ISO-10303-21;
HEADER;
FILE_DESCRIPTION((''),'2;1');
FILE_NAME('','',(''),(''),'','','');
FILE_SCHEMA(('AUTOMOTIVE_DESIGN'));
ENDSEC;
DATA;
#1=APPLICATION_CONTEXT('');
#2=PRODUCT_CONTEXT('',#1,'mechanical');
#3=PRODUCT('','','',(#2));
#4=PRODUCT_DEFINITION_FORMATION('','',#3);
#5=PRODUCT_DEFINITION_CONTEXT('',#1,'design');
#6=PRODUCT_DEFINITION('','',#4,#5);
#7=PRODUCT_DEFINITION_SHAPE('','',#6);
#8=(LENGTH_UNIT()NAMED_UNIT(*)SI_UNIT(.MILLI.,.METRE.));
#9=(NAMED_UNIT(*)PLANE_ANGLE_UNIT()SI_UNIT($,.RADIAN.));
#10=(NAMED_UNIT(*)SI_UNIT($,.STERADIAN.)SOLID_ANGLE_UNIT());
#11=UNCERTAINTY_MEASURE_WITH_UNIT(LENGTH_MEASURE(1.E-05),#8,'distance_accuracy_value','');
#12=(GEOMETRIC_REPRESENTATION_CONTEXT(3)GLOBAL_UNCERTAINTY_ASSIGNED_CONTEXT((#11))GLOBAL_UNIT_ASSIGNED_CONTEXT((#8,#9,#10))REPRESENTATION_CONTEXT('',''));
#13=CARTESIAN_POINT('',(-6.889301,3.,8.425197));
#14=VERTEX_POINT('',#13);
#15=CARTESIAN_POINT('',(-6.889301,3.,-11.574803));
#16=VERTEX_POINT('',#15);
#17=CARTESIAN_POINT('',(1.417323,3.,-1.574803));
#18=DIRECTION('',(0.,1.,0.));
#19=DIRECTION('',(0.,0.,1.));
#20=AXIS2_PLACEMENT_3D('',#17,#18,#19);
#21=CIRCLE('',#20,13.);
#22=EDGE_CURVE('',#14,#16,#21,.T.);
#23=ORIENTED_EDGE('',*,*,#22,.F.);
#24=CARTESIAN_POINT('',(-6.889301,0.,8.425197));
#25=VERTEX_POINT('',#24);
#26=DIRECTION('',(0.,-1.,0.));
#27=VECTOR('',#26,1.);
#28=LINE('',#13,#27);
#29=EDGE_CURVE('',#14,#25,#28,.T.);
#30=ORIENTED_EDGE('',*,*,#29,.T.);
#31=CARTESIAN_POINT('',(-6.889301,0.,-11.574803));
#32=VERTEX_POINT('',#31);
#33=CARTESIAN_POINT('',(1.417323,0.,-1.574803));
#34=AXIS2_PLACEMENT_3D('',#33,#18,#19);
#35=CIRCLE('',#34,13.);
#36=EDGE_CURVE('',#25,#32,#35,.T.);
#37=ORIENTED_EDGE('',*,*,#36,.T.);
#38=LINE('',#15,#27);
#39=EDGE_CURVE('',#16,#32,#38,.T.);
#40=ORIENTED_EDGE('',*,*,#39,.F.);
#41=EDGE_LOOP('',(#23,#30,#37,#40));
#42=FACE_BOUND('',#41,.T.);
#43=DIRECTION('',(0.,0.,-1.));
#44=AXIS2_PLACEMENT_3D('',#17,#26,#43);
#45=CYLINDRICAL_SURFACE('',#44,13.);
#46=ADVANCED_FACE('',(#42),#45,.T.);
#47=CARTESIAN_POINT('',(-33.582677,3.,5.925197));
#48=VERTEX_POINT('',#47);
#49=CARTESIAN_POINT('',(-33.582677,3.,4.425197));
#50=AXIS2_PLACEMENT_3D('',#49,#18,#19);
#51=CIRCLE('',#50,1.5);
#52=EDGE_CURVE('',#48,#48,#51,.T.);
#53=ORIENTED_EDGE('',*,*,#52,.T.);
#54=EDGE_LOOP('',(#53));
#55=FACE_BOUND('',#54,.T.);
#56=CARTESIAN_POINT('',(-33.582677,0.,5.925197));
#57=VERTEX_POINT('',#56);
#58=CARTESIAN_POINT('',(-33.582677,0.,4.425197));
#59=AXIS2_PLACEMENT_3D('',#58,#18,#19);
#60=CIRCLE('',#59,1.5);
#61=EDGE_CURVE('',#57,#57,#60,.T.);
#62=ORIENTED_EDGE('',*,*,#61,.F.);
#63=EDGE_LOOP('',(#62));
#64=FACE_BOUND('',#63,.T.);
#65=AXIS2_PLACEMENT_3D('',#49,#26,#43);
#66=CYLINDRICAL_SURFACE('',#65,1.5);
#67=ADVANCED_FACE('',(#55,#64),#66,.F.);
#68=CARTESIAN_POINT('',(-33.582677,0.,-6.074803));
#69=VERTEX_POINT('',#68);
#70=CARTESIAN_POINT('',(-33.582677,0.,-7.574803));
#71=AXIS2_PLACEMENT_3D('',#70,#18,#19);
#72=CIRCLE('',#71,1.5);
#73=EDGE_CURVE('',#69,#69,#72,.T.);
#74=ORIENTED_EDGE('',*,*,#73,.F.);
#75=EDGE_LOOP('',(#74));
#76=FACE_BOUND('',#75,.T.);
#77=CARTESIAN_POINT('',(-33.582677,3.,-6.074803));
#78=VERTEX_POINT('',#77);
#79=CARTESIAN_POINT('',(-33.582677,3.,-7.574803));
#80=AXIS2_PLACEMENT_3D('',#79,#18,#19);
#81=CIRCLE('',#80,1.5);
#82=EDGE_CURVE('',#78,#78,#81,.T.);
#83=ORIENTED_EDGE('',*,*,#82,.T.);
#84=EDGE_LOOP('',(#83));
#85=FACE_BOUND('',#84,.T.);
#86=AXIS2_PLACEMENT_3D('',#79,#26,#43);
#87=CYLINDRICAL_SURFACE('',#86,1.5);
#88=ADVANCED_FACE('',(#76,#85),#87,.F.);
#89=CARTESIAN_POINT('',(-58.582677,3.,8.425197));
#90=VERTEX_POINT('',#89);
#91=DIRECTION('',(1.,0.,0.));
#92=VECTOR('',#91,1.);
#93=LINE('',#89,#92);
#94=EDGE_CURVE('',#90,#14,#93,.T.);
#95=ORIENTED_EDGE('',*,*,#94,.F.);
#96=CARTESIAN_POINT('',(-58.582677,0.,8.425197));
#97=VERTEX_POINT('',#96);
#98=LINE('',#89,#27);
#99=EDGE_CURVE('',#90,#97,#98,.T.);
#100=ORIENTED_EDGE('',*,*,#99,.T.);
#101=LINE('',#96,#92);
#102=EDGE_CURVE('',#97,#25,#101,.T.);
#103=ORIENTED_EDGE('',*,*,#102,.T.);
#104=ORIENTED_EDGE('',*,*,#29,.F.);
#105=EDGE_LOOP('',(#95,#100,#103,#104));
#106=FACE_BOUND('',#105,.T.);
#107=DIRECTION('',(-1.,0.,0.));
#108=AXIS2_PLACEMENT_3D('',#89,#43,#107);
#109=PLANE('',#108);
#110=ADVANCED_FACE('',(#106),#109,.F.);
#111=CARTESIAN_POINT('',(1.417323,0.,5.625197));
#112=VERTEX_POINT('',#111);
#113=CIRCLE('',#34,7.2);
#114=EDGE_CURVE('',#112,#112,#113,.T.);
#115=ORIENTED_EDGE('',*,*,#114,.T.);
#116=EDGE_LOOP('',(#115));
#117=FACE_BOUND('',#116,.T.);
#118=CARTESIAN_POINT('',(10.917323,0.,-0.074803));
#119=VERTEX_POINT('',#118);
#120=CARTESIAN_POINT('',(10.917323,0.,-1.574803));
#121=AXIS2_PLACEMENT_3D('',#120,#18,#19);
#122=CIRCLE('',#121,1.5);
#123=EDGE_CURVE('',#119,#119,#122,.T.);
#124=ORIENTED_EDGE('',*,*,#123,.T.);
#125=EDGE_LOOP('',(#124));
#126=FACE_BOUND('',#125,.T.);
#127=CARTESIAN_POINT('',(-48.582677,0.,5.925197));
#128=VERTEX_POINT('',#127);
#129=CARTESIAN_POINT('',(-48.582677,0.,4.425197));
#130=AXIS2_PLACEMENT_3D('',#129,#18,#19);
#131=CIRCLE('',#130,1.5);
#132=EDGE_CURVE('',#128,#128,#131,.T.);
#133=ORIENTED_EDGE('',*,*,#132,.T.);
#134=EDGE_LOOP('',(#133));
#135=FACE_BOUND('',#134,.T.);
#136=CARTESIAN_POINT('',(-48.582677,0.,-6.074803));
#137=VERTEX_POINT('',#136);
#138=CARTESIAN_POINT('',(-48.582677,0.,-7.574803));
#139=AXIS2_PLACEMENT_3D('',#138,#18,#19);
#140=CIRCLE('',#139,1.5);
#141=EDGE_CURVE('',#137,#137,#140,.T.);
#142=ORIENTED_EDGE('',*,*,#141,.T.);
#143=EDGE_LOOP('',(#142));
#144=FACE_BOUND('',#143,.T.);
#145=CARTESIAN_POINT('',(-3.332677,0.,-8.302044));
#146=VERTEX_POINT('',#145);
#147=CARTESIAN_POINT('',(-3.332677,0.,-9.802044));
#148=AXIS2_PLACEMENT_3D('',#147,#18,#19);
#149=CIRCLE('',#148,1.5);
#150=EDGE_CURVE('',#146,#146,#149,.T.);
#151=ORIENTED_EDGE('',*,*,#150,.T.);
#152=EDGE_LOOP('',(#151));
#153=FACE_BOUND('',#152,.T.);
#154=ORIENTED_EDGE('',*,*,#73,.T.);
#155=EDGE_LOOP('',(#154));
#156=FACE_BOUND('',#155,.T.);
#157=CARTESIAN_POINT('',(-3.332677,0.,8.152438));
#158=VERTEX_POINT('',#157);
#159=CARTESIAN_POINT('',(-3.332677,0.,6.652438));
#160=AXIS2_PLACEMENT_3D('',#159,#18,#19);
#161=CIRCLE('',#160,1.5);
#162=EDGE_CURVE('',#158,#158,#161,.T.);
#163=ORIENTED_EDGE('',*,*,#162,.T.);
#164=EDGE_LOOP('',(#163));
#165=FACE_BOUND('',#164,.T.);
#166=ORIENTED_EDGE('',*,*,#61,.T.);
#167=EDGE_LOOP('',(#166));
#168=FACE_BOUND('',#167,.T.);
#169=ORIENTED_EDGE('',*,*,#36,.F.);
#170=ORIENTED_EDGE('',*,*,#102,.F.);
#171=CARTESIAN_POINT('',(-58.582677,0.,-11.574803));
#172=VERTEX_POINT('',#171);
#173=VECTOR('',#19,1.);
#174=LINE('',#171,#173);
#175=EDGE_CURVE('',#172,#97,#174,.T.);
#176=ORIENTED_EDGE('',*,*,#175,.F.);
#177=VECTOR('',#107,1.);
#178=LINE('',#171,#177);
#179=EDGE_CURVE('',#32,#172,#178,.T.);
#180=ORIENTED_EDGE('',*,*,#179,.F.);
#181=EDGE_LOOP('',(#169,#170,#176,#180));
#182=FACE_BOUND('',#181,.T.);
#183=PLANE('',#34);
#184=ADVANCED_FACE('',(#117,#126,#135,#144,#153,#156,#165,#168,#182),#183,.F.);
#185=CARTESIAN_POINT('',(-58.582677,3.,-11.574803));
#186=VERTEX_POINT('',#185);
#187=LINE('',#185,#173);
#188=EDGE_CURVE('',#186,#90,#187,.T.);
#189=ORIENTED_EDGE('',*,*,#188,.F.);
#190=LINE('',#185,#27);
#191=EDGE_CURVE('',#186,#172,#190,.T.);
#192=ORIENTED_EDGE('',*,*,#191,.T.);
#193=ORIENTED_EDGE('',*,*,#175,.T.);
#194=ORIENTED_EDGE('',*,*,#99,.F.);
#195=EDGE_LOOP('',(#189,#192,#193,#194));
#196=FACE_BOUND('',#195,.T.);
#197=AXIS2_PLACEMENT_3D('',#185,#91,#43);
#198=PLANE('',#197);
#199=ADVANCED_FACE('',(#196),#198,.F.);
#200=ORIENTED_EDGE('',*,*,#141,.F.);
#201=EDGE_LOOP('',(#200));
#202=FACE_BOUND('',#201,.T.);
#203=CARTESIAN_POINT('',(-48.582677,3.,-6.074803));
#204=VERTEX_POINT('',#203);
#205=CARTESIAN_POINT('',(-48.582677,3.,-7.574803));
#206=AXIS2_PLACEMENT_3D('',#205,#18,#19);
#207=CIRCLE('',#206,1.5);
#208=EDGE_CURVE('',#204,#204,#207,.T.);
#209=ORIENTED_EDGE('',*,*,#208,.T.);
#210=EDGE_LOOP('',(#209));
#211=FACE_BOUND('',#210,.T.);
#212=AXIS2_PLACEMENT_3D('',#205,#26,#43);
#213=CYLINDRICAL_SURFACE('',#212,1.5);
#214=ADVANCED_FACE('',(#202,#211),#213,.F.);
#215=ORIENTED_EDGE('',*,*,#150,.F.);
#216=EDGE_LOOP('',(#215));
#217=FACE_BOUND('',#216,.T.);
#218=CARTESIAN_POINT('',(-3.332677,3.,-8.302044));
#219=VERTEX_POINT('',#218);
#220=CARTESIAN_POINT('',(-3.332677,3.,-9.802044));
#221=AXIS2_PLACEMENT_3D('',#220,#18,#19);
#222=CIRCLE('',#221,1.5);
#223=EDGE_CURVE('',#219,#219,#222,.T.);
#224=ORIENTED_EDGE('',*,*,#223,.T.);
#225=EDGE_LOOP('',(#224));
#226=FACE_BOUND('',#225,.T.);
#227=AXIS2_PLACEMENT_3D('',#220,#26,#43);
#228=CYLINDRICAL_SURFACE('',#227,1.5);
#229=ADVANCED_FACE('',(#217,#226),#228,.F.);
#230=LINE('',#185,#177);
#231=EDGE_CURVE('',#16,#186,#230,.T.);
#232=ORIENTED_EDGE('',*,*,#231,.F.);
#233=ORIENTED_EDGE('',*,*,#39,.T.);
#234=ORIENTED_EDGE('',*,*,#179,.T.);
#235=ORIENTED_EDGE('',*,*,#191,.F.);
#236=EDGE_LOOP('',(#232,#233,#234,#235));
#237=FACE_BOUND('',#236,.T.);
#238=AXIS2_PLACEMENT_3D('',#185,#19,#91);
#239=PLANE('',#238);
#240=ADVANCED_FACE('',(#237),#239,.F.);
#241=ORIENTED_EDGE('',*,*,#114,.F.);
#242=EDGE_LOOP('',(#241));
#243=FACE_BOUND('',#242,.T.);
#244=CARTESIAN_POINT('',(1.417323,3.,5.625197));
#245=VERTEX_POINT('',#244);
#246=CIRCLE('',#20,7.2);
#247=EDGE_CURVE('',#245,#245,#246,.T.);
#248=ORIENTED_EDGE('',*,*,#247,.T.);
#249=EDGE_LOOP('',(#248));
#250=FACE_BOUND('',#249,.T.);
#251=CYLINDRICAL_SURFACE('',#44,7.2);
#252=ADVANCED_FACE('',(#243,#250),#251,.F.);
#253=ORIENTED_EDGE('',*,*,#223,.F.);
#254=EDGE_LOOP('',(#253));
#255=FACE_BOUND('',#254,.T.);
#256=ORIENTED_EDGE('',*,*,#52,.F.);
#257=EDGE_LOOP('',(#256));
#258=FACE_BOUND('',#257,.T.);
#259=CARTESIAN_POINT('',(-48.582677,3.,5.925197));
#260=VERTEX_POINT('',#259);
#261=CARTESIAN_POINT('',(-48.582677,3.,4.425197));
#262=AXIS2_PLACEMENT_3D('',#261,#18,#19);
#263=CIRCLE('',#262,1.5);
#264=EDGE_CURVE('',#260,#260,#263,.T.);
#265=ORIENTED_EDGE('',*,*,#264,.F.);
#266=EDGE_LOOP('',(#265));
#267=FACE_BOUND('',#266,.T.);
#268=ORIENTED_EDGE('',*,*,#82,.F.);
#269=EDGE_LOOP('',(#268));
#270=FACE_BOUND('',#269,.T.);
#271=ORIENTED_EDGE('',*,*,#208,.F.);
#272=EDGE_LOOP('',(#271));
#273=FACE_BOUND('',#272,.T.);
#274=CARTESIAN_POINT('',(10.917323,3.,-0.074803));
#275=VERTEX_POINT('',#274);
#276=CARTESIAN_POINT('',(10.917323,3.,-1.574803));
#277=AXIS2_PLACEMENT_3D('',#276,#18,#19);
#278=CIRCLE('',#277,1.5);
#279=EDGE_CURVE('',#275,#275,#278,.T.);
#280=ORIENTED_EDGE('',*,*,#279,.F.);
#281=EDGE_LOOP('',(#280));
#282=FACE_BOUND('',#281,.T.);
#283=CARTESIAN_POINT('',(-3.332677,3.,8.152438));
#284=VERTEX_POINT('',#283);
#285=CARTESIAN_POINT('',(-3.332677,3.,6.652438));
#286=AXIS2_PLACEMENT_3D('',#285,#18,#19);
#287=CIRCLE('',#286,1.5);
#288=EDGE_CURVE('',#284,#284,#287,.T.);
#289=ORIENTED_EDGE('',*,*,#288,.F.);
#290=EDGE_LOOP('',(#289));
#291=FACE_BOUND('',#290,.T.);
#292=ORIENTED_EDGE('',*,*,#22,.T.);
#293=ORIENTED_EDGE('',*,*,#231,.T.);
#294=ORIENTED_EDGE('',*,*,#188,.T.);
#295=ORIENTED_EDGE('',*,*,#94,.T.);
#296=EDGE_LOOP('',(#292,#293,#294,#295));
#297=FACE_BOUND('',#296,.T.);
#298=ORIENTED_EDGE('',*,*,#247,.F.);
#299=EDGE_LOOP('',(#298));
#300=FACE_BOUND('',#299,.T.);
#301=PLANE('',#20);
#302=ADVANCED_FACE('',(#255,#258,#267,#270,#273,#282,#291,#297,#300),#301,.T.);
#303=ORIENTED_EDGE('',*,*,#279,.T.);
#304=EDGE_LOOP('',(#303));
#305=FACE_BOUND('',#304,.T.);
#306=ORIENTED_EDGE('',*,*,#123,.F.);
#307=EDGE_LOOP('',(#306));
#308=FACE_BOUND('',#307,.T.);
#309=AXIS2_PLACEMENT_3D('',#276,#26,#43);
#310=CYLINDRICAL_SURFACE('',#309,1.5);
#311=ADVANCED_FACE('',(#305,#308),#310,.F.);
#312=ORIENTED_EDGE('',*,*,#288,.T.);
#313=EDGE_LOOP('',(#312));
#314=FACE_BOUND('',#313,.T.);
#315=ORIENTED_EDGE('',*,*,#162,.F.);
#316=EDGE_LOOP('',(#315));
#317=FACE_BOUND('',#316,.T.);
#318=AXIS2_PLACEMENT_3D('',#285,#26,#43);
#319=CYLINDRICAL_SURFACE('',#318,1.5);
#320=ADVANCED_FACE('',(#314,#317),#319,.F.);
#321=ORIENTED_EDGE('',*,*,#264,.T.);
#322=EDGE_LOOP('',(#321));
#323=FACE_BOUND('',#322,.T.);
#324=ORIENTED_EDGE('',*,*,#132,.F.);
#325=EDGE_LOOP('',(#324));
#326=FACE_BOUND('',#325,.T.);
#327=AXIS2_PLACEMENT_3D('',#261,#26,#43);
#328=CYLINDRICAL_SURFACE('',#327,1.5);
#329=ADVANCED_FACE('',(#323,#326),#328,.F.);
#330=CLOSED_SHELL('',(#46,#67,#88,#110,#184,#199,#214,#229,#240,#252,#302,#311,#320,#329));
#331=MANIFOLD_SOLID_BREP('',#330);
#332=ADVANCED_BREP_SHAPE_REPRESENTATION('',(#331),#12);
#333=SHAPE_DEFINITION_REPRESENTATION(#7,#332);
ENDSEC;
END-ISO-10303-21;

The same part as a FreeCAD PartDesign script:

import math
import FreeCAD as App
import Part
import Sketcher

V = App.Vector
Q = App.Units.Quantity

doc = App.newDocument("Part")
params = doc.addObject("Spreadsheet::Sheet", "Params")
for row, (alias, value) in enumerate([
    ("sketch1_diameter", "3 mm"),
    ("sketch1_radius", "13 mm"),
    ("sketch1_diameter2", "14.4 mm"),
    ("sketch1_height", "20 mm"),
    ("pad1_length", "3 mm"),
], start=1):
    params.set(f"A{row}", alias)
    params.set(f"B{row}", "=" + value)
    params.setAlias(f"B{row}", alias)

body = doc.addObject("PartDesign::Body", "Body")

# Sketch on XZ plane
sketch1 = doc.addObject("Sketcher::SketchObject", "Sketch")
body.addObject(sketch1)
sketch1.AttachmentSupport = (doc.XZ_Plane, [""])
sketch1.MapMode = "FlatFace"
sketch1.addGeometry([
    Part.LineSegment(V(-6.889301, -11.574803, 0), V(-58.582677, -11.574803, 0)),  # 0
    Part.LineSegment(V(-58.582677, -11.574803, 0), V(-58.582677, 8.425197, 0)),  # 1
    Part.LineSegment(V(-58.582677, 8.425197, 0), V(-6.889301, 8.425197, 0)),  # 2
    Part.ArcOfCircle(Part.Circle(V(1.417323, -1.574803, 0), V(0, 0, 1), 13), math.radians(-129.715137), math.radians(129.715137)),  # 3
    Part.Circle(V(-3.332677, 6.652438, 0), V(0, 0, 1), 1.5),  # 4
    Part.Circle(V(-33.582677, 4.425197, 0), V(0, 0, 1), 1.5),  # 5
    Part.Circle(V(-48.582677, 4.425197, 0), V(0, 0, 1), 1.5),  # 6
    Part.Circle(V(10.917323, -1.574803, 0), V(0, 0, 1), 1.5),  # 7
    Part.Circle(V(1.417323, -1.574803, 0), V(0, 0, 1), 7.2),  # 8
    Part.Circle(V(-3.332677, -9.802044, 0), V(0, 0, 1), 1.5),  # 9
    Part.Circle(V(-33.582677, -7.574803, 0), V(0, 0, 1), 1.5),  # 10
    Part.Circle(V(-48.582677, -7.574803, 0), V(0, 0, 1), 1.5),  # 11
], False)
sketch1.addConstraint([
    Sketcher.Constraint("Coincident", 0, 2, 1, 1),
    Sketcher.Constraint("Coincident", 1, 2, 2, 1),
    Sketcher.Constraint("Coincident", 2, 2, 3, 2),
    Sketcher.Constraint("Coincident", 3, 1, 0, 1),
    Sketcher.Constraint("Horizontal", 0),
    Sketcher.Constraint("Vertical", 1),
    Sketcher.Constraint("Horizontal", 2),
    Sketcher.Constraint("Coincident", 8, 3, 3, 3),
    Sketcher.Constraint("Equal", 4, 5),
    Sketcher.Constraint("Equal", 5, 6),
    Sketcher.Constraint("Equal", 6, 7),
    Sketcher.Constraint("Equal", 7, 9),
    Sketcher.Constraint("Equal", 9, 10),
    Sketcher.Constraint("Equal", 10, 11),
    Sketcher.Constraint("Horizontal", 5, 3, 6, 3),
    Sketcher.Constraint("Horizontal", 3, 3, 7, 3),
    Sketcher.Constraint("Horizontal", 10, 3, 11, 3),
    Sketcher.Constraint("Vertical", 4, 3, 9, 3),
    Sketcher.Constraint("Vertical", 5, 3, 10, 3),
    Sketcher.Constraint("Vertical", 6, 3, 11, 3),
    Sketcher.Constraint("Vertical", 2, 2, 3, 1),
    Sketcher.Constraint("Diameter", 4, Q("3 mm")),
    Sketcher.Constraint("Radius", 3, Q("13 mm")),
    Sketcher.Constraint("Diameter", 8, Q("14.4 mm")),
    Sketcher.Constraint("DistanceY", 1, 1, 1, 2, Q("20 mm")),
    Sketcher.Constraint("DistanceX", 5, 3, 3, 3, Q("35 mm")),
    Sketcher.Constraint("DistanceY", 3, 3, 5, 3, Q("6 mm")),
    Sketcher.Constraint("DistanceX", 6, 3, 5, 3, Q("15 mm")),
    Sketcher.Constraint("DistanceY", 10, 3, 5, 3, Q("12 mm")),
    Sketcher.Constraint("DistanceX", 0, 2, 11, 3, Q("10 mm")),
    Sketcher.Constraint("DistanceX", 3, 3, 7, 3, Q("9.5 mm")),
    Sketcher.Constraint("DistanceX", 4, 3, 3, 3, Q("4.75 mm")),
    Sketcher.Constraint("DistanceX", 2, 2, -1, 1, Q("6.889301 mm")),
    Sketcher.Constraint("DistanceY", -1, 1, 4, 3, Q("6.652438 mm")),
    Sketcher.Constraint("DistanceY", 3, 3, 4, 3, Q("8.227241 mm")),
    Sketcher.Constraint("DistanceY", 9, 3, 3, 3, Q("8.227241 mm")),
])
sketch1.setExpression("Constraints[21]", "Params.sketch1_diameter")
sketch1.setExpression("Constraints[22]", "Params.sketch1_radius")
sketch1.setExpression("Constraints[23]", "Params.sketch1_diameter2")
sketch1.setExpression("Constraints[24]", "Params.sketch1_height")
pad1 = doc.addObject("PartDesign::Pad", "Pad")
body.addObject(pad1)
pad1.Profile = sketch1
pad1.setExpression("Length", "Params.pad1_length")
pad1.Reversed = True

doc.recompute()
